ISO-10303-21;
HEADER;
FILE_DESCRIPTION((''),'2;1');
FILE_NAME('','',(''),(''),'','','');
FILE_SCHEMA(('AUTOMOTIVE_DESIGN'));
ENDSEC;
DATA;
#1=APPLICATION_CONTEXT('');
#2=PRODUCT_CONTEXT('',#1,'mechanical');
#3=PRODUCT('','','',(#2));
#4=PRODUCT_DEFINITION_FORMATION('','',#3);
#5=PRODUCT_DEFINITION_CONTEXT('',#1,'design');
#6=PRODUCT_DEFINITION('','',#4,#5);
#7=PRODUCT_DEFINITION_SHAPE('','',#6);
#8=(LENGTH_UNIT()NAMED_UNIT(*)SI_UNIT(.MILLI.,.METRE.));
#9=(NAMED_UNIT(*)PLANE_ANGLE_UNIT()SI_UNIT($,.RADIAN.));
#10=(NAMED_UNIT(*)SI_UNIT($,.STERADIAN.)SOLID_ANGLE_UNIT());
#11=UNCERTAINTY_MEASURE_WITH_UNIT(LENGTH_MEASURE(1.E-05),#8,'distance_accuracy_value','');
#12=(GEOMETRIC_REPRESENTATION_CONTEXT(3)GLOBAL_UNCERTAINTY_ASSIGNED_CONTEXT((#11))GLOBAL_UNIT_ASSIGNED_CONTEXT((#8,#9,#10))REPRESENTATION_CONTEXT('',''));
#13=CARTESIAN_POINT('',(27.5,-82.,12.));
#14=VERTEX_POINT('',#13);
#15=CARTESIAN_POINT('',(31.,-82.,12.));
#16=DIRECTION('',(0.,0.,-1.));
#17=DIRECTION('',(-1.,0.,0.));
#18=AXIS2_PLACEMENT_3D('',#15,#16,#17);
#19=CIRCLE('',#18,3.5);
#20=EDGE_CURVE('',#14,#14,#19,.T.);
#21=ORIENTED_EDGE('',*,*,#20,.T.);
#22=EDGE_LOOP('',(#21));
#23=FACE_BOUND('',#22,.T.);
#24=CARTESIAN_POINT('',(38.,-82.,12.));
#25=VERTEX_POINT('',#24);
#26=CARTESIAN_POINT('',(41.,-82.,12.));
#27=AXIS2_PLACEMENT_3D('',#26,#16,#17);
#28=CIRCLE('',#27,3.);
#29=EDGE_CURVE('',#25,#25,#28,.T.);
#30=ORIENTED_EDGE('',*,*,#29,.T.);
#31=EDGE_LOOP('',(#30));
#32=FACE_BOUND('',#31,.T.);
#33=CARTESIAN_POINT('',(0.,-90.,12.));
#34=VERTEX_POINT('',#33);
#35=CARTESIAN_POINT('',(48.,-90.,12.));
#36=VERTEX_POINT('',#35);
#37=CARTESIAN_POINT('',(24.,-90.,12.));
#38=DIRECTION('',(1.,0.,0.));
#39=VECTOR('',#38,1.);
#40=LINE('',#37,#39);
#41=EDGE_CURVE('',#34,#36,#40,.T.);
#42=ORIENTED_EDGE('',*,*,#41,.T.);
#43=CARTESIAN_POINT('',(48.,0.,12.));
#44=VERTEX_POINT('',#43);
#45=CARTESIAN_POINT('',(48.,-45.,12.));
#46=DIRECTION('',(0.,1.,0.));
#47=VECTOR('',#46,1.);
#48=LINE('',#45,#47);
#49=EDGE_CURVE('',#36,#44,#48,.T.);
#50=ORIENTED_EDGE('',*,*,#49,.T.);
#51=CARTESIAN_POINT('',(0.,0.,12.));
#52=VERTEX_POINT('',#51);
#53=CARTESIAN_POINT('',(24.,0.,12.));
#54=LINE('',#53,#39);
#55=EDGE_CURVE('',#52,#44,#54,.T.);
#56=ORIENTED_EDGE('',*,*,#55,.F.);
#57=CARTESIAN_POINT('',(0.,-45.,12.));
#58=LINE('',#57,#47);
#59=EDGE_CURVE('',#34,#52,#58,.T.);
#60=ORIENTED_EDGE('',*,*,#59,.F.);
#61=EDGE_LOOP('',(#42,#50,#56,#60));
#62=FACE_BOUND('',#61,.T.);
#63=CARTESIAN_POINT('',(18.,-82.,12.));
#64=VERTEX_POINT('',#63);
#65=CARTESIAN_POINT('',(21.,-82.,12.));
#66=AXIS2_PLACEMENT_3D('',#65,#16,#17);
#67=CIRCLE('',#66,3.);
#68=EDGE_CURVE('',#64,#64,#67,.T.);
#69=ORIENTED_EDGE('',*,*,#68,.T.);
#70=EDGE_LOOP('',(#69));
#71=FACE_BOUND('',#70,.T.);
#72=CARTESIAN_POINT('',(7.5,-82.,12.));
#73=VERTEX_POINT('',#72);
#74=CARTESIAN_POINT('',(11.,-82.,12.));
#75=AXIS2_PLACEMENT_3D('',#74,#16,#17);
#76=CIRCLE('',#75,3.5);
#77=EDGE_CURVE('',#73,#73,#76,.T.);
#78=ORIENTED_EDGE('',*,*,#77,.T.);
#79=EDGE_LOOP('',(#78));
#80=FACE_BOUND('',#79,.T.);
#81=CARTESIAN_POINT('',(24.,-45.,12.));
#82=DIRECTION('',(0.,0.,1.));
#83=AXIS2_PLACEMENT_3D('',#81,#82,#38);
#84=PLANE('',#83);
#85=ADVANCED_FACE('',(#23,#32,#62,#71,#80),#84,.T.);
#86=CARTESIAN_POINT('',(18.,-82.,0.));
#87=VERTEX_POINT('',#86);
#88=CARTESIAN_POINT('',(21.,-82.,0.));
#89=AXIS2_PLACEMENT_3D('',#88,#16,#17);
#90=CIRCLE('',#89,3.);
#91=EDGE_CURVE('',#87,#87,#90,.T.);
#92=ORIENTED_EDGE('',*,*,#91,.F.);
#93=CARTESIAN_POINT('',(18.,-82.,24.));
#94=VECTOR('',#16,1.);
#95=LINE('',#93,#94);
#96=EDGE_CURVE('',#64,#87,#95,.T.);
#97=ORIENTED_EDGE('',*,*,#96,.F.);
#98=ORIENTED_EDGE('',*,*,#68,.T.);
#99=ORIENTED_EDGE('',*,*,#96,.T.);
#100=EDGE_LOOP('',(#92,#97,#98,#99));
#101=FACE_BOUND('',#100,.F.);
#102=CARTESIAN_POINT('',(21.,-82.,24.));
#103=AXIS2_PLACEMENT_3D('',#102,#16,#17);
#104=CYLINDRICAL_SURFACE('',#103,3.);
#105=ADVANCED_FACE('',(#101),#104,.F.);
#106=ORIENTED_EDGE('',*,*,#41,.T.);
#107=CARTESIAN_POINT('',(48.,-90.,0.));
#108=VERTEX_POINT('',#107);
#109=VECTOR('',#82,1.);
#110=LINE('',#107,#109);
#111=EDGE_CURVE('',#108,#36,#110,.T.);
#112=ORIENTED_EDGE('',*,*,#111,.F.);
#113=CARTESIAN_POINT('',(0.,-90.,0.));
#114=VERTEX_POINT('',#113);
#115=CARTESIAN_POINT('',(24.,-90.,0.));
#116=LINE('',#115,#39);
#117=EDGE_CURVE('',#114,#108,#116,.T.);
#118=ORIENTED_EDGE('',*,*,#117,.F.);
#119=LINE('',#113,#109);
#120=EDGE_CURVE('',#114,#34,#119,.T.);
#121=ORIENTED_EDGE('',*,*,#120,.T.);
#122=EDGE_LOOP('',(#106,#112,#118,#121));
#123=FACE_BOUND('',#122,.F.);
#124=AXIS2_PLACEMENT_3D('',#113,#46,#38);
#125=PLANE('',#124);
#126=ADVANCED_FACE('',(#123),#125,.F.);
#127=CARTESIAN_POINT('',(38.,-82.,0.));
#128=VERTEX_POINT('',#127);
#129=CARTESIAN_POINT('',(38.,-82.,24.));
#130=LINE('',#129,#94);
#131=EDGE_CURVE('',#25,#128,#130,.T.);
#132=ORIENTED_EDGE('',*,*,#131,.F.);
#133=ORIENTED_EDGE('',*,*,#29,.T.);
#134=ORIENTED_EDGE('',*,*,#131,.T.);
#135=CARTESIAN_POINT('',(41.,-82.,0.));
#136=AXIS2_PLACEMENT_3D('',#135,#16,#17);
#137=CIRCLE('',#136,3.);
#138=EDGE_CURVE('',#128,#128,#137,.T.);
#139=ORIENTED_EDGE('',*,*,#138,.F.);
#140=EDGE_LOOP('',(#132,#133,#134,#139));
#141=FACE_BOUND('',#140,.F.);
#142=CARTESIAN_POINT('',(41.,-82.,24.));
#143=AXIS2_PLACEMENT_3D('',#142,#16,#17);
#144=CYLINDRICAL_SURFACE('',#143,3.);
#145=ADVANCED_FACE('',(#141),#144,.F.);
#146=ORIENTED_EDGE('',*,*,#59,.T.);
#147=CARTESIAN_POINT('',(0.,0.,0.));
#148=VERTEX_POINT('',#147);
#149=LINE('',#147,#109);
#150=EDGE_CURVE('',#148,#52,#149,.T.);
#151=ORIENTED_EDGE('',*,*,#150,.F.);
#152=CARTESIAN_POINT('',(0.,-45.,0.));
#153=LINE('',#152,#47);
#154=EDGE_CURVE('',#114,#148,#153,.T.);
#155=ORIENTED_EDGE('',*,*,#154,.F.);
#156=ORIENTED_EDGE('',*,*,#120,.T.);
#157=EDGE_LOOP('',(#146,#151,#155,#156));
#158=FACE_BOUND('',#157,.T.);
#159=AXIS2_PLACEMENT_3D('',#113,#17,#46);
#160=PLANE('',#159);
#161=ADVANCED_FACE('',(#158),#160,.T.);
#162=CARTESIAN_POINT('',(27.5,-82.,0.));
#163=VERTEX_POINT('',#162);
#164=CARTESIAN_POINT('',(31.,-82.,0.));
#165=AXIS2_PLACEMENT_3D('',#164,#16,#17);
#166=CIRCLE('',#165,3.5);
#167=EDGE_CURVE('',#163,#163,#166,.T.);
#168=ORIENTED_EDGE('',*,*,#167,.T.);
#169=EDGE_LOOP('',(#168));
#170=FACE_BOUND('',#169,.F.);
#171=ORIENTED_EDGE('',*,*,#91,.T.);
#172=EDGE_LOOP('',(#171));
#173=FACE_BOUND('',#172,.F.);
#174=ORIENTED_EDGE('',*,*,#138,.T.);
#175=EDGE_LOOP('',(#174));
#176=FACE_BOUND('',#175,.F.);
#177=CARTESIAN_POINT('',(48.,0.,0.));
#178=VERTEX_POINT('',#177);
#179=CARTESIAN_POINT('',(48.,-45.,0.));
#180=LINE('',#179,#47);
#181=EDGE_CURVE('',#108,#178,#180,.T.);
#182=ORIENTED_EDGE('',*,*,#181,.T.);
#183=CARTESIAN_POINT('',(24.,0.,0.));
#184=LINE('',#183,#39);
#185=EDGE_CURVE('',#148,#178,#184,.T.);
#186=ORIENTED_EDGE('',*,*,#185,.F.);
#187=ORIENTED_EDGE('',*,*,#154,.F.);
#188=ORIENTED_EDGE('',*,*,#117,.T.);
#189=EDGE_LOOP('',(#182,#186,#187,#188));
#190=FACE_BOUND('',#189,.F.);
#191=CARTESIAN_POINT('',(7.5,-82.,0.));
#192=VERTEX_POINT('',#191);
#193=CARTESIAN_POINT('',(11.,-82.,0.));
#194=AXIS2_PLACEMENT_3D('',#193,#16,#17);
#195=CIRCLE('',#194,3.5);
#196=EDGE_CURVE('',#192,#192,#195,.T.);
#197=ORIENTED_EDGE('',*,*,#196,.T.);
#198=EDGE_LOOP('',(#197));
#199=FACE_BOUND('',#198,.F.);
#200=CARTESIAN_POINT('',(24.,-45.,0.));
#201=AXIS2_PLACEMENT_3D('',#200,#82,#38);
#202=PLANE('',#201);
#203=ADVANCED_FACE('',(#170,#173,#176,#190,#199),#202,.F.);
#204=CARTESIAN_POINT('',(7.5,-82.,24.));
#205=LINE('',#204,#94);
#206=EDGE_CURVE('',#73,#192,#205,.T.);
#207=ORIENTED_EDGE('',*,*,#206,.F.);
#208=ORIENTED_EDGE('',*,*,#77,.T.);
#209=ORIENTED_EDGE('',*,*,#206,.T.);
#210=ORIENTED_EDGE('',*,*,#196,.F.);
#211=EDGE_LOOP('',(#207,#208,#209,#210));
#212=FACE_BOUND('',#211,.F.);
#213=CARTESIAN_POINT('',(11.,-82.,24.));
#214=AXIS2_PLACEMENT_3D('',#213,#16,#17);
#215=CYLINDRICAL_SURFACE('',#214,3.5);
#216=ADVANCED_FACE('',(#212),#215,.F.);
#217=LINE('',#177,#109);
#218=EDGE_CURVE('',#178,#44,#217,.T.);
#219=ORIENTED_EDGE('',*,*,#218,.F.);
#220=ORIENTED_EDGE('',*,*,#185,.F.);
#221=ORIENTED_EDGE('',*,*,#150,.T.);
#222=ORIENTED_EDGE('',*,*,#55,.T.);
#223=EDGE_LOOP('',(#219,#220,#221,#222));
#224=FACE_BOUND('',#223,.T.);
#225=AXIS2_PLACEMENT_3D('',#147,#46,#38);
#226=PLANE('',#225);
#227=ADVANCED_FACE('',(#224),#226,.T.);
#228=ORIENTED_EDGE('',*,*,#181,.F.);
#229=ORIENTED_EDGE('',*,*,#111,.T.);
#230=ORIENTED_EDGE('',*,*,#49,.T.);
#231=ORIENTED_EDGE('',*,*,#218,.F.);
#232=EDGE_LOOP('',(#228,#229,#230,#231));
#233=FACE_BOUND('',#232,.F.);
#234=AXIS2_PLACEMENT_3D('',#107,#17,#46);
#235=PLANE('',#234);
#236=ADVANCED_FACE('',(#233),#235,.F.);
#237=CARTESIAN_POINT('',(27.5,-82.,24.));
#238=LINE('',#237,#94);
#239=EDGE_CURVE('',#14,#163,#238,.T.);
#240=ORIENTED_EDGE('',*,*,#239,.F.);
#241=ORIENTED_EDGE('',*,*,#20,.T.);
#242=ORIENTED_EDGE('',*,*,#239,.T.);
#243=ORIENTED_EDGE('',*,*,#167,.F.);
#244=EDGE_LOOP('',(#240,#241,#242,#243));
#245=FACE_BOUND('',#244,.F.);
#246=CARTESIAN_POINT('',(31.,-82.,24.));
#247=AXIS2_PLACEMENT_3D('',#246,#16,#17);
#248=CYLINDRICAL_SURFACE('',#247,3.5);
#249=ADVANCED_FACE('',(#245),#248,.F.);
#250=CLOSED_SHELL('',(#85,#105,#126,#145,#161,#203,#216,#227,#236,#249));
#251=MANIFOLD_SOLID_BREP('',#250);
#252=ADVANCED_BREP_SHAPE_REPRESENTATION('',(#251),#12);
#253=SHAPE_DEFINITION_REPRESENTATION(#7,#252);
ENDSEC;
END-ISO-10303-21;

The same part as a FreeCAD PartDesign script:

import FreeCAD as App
import Part
import Sketcher

V = App.Vector
Q = App.Units.Quantity

doc = App.newDocument("Part")
params = doc.addObject("Spreadsheet::Sheet", "Params")
for row, (alias, value) in enumerate([
    ("sketch1_width", "48 mm"),
    ("sketch1_height", "90 mm"),
    ("pad1_length", "12 mm"),
    ("sketch2_diameter", "7 mm"),
    ("hole_diameter", "7 mm"),
    ("hole_depth", "12 mm"),
    ("sketch3_diameter", "6 mm"),
    ("hole2_diameter", "6 mm"),
    ("hole2_depth", "12 mm"),
], start=1):
    params.set(f"A{row}", alias)
    params.set(f"B{row}", "=" + value)
    params.setAlias(f"B{row}", alias)

body = doc.addObject("PartDesign::Body", "Body")

# Sketch on XY plane
sketch1 = body.newObject("Sketcher::SketchObject", "Sketch")
sketch1.AttachmentSupport = (doc.getObject("XY_Plane"), [""])
sketch1.MapMode = "FlatFace"
sketch1.addGeometry(Part.LineSegment(V(0, 0, 0), V(0, -90, 0)), False)
sketch1.addGeometry(Part.LineSegment(V(0, -90, 0), V(48, -90, 0)), False)
sketch1.addGeometry(Part.LineSegment(V(48, -90, 0), V(48, 0, 0)), False)
sketch1.addGeometry(Part.LineSegment(V(48, 0, 0), V(0, 0, 0)), False)
sketch1.addConstraint(Sketcher.Constraint("Coincident", 0, 2, 1, 1))
sketch1.addConstraint(Sketcher.Constraint("Coincident", 1, 2, 2, 1))
sketch1.addConstraint(Sketcher.Constraint("Coincident", 2, 2, 3, 1))
sketch1.addConstraint(Sketcher.Constraint("Coincident", 3, 2, 0, 1))
sketch1.addConstraint(Sketcher.Constraint("Vertical", 0))
sketch1.addConstraint(Sketcher.Constraint("Horizontal", 1))
sketch1.addConstraint(Sketcher.Constraint("Vertical", 2))
sketch1.addConstraint(Sketcher.Constraint("Horizontal", 3))
sketch1.addConstraint(Sketcher.Constraint("Coincident", 3, 2, -1, 1))
sketch1.addConstraint(Sketcher.Constraint("DistanceX", 1, 1, 1, 2, Q("48 mm")))
sketch1.addConstraint(Sketcher.Constraint("DistanceY", 0, 2, 0, 1, Q("90 mm")))
sketch1.setExpression("Constraints[9]", "Params.sketch1_width")
sketch1.setExpression("Constraints[10]", "Params.sketch1_height")
pad1 = body.newObject("PartDesign::Pad", "Pad")
pad1.Profile = sketch1
pad1.setExpression("Length", "Params.pad1_length")

# Sketch on XY plane
sketch2 = body.newObject("Sketcher::SketchObject", "Sketch001")
sketch2.AttachmentSupport = (doc.getObject("XY_Plane"), [""])
sketch2.MapMode = "FlatFace"
sketch2.AttachmentOffset = App.Placement(V(0, 0, 12), App.Rotation())
sketch2.addGeometry(Part.Circle(V(11, -82, 0), V(0, 0, 1), 3.5), False)
sketch2.addGeometry(Part.Circle(V(31, -82, 0), V(0, 0, 1), 3.5), False)
sketch2.addConstraint(Sketcher.Constraint("Equal", 0, 1))
sketch2.addConstraint(Sketcher.Constraint("Horizontal", 0, 3, 1, 3))
sketch2.addConstraint(Sketcher.Constraint("Diameter", 0, Q("7 mm")))
sketch2.addConstraint(Sketcher.Constraint("DistanceX", -1, 1, 0, 3, Q("11 mm")))
sketch2.addConstraint(Sketcher.Constraint("DistanceY", 0, 3, -1, 1, Q("82 mm")))
sketch2.addConstraint(Sketcher.Constraint("DistanceX", -1, 1, 1, 3, Q("31 mm")))
sketch2.setExpression("Constraints[2]", "Params.sketch2_diameter")
doc.recompute()
hole = body.newObject("PartDesign::Hole", "Hole")
hole.Profile = sketch2
hole.ThreadType = "None"
hole.setExpression("Diameter", "Params.hole_diameter")
hole.DepthType = "Dimension"
hole.setExpression("Depth", "Params.hole_depth")
hole.DrillPoint = "Flat"

# Sketch on XY plane
sketch3 = body.newObject("Sketcher::SketchObject", "Sketch002")
sketch3.AttachmentSupport = (doc.getObject("XY_Plane"), [""])
sketch3.MapMode = "FlatFace"
sketch3.AttachmentOffset = App.Placement(V(0, 0, 12), App.Rotation())
sketch3.addGeometry(Part.Circle(V(21, -82, 0), V(0, 0, 1), 3), False)
sketch3.addGeometry(Part.Circle(V(41, -82, 0), V(0, 0, 1), 3), False)
sketch3.addConstraint(Sketcher.Constraint("Equal", 0, 1))
sketch3.addConstraint(Sketcher.Constraint("Horizontal", 0, 3, 1, 3))
sketch3.addConstraint(Sketcher.Constraint("Diameter", 0, Q("6 mm")))
sketch3.addConstraint(Sketcher.Constraint("DistanceX", -1, 1, 0, 3, Q("21 mm")))
sketch3.addConstraint(Sketcher.Constraint("DistanceY", 0, 3, -1, 1, Q("82 mm")))
sketch3.addConstraint(Sketcher.Constraint("DistanceX", -1, 1, 1, 3, Q("41 mm")))
sketch3.setExpression("Constraints[2]", "Params.sketch3_diameter")
doc.recompute()
hole2 = body.newObject("PartDesign::Hole", "Hole001")
hole2.Profile = sketch3
hole2.ThreadType = "None"
hole2.setExpression("Diameter", "Params.hole2_diameter")
hole2.DepthType = "Dimension"
hole2.setExpression("Depth", "Params.hole2_depth")
hole2.DrillPoint = "Flat"

doc.recompute()
